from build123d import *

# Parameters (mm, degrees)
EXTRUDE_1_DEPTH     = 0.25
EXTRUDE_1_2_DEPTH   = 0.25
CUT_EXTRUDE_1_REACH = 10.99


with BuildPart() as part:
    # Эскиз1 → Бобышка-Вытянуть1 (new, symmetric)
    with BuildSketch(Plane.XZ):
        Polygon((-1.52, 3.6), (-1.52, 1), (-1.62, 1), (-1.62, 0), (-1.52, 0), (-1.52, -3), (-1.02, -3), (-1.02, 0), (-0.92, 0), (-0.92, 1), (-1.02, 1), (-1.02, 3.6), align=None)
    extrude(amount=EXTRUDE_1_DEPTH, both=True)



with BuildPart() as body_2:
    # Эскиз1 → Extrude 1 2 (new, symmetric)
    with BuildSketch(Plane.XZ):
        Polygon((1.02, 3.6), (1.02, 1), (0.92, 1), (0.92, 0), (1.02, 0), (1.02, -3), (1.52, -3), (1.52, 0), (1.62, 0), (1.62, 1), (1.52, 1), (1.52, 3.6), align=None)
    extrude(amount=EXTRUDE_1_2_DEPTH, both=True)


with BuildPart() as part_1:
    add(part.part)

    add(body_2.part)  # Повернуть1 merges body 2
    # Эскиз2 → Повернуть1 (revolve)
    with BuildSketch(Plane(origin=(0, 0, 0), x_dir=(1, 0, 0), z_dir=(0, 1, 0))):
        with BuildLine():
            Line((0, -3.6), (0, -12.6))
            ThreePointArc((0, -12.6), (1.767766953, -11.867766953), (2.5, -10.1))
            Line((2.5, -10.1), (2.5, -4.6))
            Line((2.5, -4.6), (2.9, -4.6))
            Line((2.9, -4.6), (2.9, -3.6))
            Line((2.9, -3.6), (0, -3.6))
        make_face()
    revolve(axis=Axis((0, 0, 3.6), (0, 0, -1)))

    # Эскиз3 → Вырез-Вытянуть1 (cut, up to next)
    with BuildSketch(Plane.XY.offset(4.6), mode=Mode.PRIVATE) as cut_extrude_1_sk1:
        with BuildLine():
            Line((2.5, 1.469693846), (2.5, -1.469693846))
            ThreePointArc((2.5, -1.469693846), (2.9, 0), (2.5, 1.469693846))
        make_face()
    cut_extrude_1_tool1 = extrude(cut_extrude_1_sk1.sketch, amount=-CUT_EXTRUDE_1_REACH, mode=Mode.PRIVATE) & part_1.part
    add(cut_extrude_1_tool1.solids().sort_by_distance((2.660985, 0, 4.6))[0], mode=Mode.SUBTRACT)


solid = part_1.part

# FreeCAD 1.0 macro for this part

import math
import FreeCAD as App
import Part
import Sketcher

V = App.Vector
Q = App.Units.Quantity


def add_polygon(sketch, points):
    """Adds a closed chain of lines whose ends are joined by coincident constraints."""
    first, n = sketch.GeometryCount, len(points)
    for a, b in zip(points, points[1:] + points[:1]):
        sketch.addGeometry(Part.LineSegment(App.Vector(*a, 0), App.Vector(*b, 0)), False)
    for i in range(n):
        sketch.addConstraint(Sketcher.Constraint("Coincident", first + i, 2, first + (i + 1) % n, 1))

doc = App.newDocument("Part")
body = doc.addObject("PartDesign::Body", "Body")

# Sketch on XZ plane
sketch1 = body.newObject("Sketcher::SketchObject", "Sketch")
sketch1.AttachmentSupport = (doc.getObject("XZ_Plane"), [""])
sketch1.MapMode = "FlatFace"
add_polygon(sketch1, [(-1.52, 3.6), (-1.52, 1), (-1.62, 1), (-1.62, 0), (-1.52, 0), (-1.52, -3), (-1.02, -3), (-1.02, 0), (-0.92, 0), (-0.92, 1), (-1.02, 1), (-1.02, 3.6)])  # lines 0-11
sketch1.addConstraint([
    Sketcher.Constraint("Vertical", 0),
    Sketcher.Constraint("Horizontal", 1),
    Sketcher.Constraint("Vertical", 2),
    Sketcher.Constraint("Horizontal", 3),
    Sketcher.Constraint("Vertical", 4),
    Sketcher.Constraint("Horizontal", 5),
    Sketcher.Constraint("Vertical", 6),
    Sketcher.Constraint("Horizontal", 7),
    Sketcher.Constraint("Vertical", 8),
    Sketcher.Constraint("Horizontal", 9),
    Sketcher.Constraint("Vertical", 10),
    Sketcher.Constraint("Horizontal", 11),
    Sketcher.Constraint("PointOnObject", 2, 2, -1),
    Sketcher.Constraint("PointOnObject", 6, 2, -1),
    Sketcher.Constraint("Horizontal", 1, 2, 8, 2),
    Sketcher.Constraint("Vertical", 0, 2, 3, 2),
    Sketcher.Constraint("Vertical", 6, 2, 9, 2),
    Sketcher.Constraint("Equal", 3, 7),
    Sketcher.Constraint("DistanceY", 2, 2, 2, 1, Q("1 mm")),
    Sketcher.Constraint("DistanceY", 4, 2, 4, 1, Q("3 mm")),
    Sketcher.Constraint("DistanceX", 1, 2, 1, 1, Q("0.1 mm")),
    Sketcher.Constraint("DistanceX", 5, 1, 5, 2, Q("0.5 mm")),
    Sketcher.Constraint("DistanceY", 0, 2, 0, 1, Q("2.6 mm")),
    Sketcher.Constraint("DistanceX", 0, 2, -1, 1, Q("1.52 mm")),
])
pad1 = body.newObject("PartDesign::Pad", "Pad")
pad1.Profile = sketch1
pad1.Length = 0.5
pad1.Midplane = True
body2 = doc.addObject("PartDesign::Body", "Body001")

# Sketch on XZ plane
sketch2 = body2.newObject("Sketcher::SketchObject", "Sketch001")
sketch2.AttachmentSupport = (doc.getObject("XZ_Plane001"), [""])
sketch2.MapMode = "FlatFace"
add_polygon(sketch2, [(1.02, 3.6), (1.02, 1), (0.92, 1), (0.92, 0), (1.02, 0), (1.02, -3), (1.52, -3), (1.52, 0), (1.62, 0), (1.62, 1), (1.52, 1), (1.52, 3.6)])  # lines 0-11
sketch2.addConstraint([
    Sketcher.Constraint("Vertical", 0),
    Sketcher.Constraint("Horizontal", 1),
    Sketcher.Constraint("Vertical", 2),
    Sketcher.Constraint("Horizontal", 3),
    Sketcher.Constraint("Vertical", 4),
    Sketcher.Constraint("Horizontal", 5),
    Sketcher.Constraint("Vertical", 6),
    Sketcher.Constraint("Horizontal", 7),
    Sketcher.Constraint("Vertical", 8),
    Sketcher.Constraint("Horizontal", 9),
    Sketcher.Constraint("Vertical", 10),
    Sketcher.Constraint("Horizontal", 11),
    Sketcher.Constraint("PointOnObject", 2, 2, -1),
    Sketcher.Constraint("PointOnObject", 6, 2, -1),
    Sketcher.Constraint("Horizontal", 1, 2, 8, 2),
    Sketcher.Constraint("Vertical", 0, 2, 3, 2),
    Sketcher.Constraint("Vertical", 6, 2, 9, 2),
    Sketcher.Constraint("Equal", 3, 7),
    Sketcher.Constraint("DistanceY", 2, 2, 2, 1, Q("1 mm")),
    Sketcher.Constraint("DistanceY", 4, 2, 4, 1, Q("3 mm")),
    Sketcher.Constraint("DistanceX", 1, 2, 1, 1, Q("0.1 mm")),
    Sketcher.Constraint("DistanceX", 5, 1, 5, 2, Q("0.5 mm")),
    Sketcher.Constraint("DistanceY", 0, 2, 0, 1, Q("2.6 mm")),
    Sketcher.Constraint("DistanceX", -1, 1, 0, 2, Q("1.02 mm")),
])
pad2 = body2.newObject("PartDesign::Pad", "Pad001")
pad2.Profile = sketch2
pad2.Length = 0.5
pad2.Midplane = True
body.AllowCompound = True
doc.recompute()

boolean = body.newObject("PartDesign::Boolean", "Boolean")
boolean.Type = "Fuse"
boolean.addObjects([body2])

# Sketch on XZ plane
sketch3 = body.newObject("Sketcher::SketchObject", "Sketch002")
sketch3.AttachmentSupport = (doc.getObject("XZ_Plane"), [""])
sketch3.MapMode = "FlatFace"
sketch3.addGeometry([
    Part.LineSegment(V(0, 3.6, 0), V(0, 12.6, 0)),  # 0
    Part.ArcOfCircle(Part.Circle(V(0, 10.1, 0), V(0, 0, 1), 2.5), math.radians(0), math.radians(90)),  # 1
    Part.LineSegment(V(2.5, 10.1, 0), V(2.5, 4.6, 0)),  # 2
    Part.LineSegment(V(2.5, 4.6, 0), V(2.9, 4.6, 0)),  # 3
    Part.LineSegment(V(2.9, 4.6, 0), V(2.9, 3.6, 0)),  # 4
    Part.LineSegment(V(2.9, 3.6, 0), V(0, 3.6, 0)),  # 5
], False)
sketch3.addConstraint([
    Sketcher.Constraint("Coincident", 0, 2, 1, 2),
    Sketcher.Constraint("Tangent", 1, 1, 2, 1),
    Sketcher.Constraint("Coincident", 2, 2, 3, 1),
    Sketcher.Constraint("Coincident", 3, 2, 4, 1),
    Sketcher.Constraint("Coincident", 4, 2, 5, 1),
    Sketcher.Constraint("Coincident", 5, 2, 0, 1),
    Sketcher.Constraint("Vertical", 0),
    Sketcher.Constraint("Vertical", 2),
    Sketcher.Constraint("Horizontal", 3),
    Sketcher.Constraint("Vertical", 4),
    Sketcher.Constraint("Horizontal", 5),
    Sketcher.Constraint("PointOnObject", 1, 3, -2),
    Sketcher.Constraint("PointOnObject", 0, 2, -2),
    Sketcher.Constraint("Radius", 1, Q("2.5 mm")),
    Sketcher.Constraint("DistanceY", 0, 1, 0, 2, Q("9 mm")),
    Sketcher.Constraint("DistanceY", 4, 2, 4, 1, Q("1 mm")),
    Sketcher.Constraint("DistanceX", 3, 1, 3, 2, Q("0.4 mm")),
    Sketcher.Constraint("DistanceY", -1, 1, 1, 3, Q("10.1 mm")),
])
revolution = body.newObject("PartDesign::Revolution", "Revolution")
revolution.Profile = sketch3
revolution.ReferenceAxis = (sketch3, ["V_Axis"])
revolution.Angle = 360

# Sketch on XY plane
sketch4 = body.newObject("Sketcher::SketchObject", "Sketch003")
sketch4.AttachmentSupport = (doc.getObject("XY_Plane"), [""])
sketch4.MapMode = "FlatFace"
sketch4.AttachmentOffset = App.Placement(V(0, 0, 4.6), App.Rotation())
sketch4.addGeometry([
    Part.LineSegment(V(2.5, 1.469694, 0), V(2.5, -1.469694, 0)),
    Part.ArcOfCircle(Part.Circle(V(0, 0, 0), V(0, 0, 1), 2.9), math.radians(-30.450314), math.radians(30.450314)),
], False)
sketch4.addConstraint([
    Sketcher.Constraint("Coincident", 0, 1, 1, 2),
    Sketcher.Constraint("Coincident", 1, 1, 0, 2),
    Sketcher.Constraint("Vertical", 0),
    Sketcher.Constraint("Coincident", 1, 3, -1, 1),
    Sketcher.Constraint("Radius", 1, Q("2.9 mm")),
    Sketcher.Constraint("DistanceX", -1, 1, 0, 1, Q("2.5 mm")),
])
pocket1 = body.newObject("PartDesign::Pocket", "Pocket")
pocket1.Profile = sketch4
pocket1.Type = "UpToFirst"

doc.recompute()
